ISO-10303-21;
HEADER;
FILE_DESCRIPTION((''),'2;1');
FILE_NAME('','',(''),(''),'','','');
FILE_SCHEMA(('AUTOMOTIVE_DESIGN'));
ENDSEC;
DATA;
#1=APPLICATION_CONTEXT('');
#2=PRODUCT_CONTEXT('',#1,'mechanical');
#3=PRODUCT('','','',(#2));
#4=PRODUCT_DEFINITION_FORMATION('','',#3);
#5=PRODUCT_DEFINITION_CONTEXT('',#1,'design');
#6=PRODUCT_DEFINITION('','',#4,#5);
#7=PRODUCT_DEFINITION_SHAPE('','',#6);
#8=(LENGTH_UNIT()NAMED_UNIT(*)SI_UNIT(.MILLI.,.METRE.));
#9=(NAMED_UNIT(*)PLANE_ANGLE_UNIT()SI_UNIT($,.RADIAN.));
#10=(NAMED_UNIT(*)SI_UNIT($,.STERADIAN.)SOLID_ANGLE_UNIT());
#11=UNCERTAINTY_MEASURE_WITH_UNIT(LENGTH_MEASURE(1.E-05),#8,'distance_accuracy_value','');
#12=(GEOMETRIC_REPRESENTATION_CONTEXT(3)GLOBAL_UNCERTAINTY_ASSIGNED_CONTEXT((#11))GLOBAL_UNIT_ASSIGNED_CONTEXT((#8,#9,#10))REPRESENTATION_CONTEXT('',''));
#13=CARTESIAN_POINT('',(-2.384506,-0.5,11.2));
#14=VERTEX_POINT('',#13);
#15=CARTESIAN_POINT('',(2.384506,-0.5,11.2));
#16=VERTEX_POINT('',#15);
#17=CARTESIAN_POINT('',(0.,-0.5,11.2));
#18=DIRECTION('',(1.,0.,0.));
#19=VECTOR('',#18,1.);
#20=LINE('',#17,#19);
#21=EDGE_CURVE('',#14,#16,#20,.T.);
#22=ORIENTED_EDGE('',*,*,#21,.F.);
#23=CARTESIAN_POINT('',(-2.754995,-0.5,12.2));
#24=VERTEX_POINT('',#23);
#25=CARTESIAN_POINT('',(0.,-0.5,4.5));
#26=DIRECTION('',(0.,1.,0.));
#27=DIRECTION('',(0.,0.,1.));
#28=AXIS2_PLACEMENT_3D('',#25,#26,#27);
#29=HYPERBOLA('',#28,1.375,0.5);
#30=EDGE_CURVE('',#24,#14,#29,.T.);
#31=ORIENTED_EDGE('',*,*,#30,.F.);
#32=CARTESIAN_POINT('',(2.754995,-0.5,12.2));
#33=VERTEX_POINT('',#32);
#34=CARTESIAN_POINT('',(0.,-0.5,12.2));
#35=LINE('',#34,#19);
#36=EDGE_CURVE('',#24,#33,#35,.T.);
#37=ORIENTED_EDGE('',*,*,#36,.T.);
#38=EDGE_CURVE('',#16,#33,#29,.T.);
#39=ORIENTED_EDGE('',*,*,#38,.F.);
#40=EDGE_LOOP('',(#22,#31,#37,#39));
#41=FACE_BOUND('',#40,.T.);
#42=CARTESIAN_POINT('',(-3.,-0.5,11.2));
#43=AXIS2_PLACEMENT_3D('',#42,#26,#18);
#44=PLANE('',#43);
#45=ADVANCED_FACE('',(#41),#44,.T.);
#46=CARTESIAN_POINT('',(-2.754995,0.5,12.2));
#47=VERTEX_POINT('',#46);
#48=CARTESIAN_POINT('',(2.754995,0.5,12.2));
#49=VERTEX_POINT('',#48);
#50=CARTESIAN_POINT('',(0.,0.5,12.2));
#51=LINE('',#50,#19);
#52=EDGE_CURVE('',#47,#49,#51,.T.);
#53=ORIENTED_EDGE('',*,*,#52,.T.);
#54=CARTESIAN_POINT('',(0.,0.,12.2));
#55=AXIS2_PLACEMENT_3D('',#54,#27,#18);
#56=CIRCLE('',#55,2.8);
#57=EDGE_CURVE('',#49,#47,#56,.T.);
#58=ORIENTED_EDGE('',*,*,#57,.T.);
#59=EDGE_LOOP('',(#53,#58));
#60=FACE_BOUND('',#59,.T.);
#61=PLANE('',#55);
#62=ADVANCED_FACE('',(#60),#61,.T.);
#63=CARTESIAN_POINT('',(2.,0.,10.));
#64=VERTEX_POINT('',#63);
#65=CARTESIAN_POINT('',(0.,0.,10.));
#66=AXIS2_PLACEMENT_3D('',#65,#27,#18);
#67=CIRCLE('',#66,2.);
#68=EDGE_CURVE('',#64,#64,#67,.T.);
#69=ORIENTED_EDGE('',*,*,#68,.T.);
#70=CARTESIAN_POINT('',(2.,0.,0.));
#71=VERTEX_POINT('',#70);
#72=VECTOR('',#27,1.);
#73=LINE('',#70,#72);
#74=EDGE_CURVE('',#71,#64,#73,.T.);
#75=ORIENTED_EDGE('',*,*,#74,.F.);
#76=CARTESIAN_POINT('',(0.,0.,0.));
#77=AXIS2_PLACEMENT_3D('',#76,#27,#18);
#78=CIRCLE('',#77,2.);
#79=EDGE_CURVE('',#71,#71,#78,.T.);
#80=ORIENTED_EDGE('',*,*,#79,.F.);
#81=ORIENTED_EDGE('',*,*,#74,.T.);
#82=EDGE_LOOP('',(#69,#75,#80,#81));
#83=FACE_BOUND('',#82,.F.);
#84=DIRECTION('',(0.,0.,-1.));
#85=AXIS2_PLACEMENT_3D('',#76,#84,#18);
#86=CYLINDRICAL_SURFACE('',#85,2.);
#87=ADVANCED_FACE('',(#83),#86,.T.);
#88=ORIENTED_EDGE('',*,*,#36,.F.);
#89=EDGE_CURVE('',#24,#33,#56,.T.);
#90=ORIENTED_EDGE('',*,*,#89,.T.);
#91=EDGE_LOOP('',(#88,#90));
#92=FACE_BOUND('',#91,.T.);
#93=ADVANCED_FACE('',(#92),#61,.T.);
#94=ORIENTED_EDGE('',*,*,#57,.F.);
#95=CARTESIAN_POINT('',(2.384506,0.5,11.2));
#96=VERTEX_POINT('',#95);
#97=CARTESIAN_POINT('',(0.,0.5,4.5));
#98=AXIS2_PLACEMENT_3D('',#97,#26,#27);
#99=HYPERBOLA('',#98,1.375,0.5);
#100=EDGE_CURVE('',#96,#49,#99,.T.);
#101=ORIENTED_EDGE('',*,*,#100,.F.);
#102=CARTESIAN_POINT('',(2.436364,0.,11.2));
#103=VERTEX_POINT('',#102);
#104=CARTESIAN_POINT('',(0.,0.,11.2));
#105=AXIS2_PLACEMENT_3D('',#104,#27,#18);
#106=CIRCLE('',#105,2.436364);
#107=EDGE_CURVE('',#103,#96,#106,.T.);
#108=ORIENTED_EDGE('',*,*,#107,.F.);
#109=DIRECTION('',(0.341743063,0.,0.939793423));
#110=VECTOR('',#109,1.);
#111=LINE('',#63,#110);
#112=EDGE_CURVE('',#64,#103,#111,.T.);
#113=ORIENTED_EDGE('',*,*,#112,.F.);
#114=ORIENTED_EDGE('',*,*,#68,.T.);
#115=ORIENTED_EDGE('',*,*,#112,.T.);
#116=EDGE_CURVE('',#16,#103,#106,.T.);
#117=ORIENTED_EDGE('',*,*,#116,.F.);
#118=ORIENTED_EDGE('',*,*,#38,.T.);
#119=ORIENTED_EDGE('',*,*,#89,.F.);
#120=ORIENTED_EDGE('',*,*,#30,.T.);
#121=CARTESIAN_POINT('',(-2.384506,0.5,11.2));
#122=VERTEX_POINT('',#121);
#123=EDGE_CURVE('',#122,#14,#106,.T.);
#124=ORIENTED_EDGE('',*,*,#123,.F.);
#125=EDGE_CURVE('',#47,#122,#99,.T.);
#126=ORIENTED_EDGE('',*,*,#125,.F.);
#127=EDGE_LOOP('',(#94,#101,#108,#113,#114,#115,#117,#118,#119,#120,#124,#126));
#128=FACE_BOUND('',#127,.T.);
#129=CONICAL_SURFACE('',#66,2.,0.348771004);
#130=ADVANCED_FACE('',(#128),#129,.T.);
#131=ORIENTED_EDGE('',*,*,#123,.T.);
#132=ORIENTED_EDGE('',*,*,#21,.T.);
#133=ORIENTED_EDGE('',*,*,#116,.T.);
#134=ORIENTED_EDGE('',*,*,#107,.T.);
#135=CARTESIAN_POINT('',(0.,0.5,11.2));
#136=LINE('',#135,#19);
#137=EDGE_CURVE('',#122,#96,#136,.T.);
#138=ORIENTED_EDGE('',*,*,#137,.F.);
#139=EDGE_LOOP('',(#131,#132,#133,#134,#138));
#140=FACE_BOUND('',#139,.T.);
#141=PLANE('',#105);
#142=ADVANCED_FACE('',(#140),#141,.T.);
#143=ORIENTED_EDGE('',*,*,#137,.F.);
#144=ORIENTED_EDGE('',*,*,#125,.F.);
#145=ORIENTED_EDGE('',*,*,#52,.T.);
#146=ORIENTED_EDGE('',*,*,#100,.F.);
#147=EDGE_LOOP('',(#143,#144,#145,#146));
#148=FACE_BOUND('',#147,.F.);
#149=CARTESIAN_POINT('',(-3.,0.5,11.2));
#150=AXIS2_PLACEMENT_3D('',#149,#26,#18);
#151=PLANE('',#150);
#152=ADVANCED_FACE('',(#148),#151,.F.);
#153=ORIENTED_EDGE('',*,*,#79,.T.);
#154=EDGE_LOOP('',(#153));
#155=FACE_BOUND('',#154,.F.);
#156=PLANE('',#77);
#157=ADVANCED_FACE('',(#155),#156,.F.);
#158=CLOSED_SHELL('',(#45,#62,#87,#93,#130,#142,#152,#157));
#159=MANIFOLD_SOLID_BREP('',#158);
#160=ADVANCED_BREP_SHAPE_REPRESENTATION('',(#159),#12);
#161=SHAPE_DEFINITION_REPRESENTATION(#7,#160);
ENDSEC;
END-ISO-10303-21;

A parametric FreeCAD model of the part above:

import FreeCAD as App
import Part
import Sketcher

doc = App.newDocument("Part")
body = doc.addObject("PartDesign::Body", "Body")

sketch1 = doc.addObject("Sketcher::SketchObject", "Sketch")
body.addObject(sketch1)
sketch1.AttachmentSupport = (doc.XY_Plane, [""])
sketch1.MapMode = "FlatFace"
sketch1.AttachmentOffset = App.Placement(App.Vector(0, 0, 11.2), App.Rotation())
sketch1.addGeometry([
    Part.LineSegment(App.Vector(-3, 0.5, 0), App.Vector(-3, -0.5, 0)),
    Part.LineSegment(App.Vector(-3, -0.5, 0), App.Vector(3, -0.5, 0)),
    Part.LineSegment(App.Vector(3, -0.5, 0), App.Vector(3, 0.5, 0)),
    Part.LineSegment(App.Vector(3, 0.5, 0), App.Vector(-3, 0.5, 0)),
], False)
sketch1.addConstraint([
    Sketcher.Constraint("Coincident", 0, 2, 1, 1),
    Sketcher.Constraint("Coincident", 1, 2, 2, 1),
    Sketcher.Constraint("Coincident", 2, 2, 3, 1),
    Sketcher.Constraint("Coincident", 3, 2, 0, 1),
    Sketcher.Constraint("Vertical", 0),
    Sketcher.Constraint("Horizontal", 1),
    Sketcher.Constraint("Vertical", 2),
    Sketcher.Constraint("Horizontal", 3),
    Sketcher.Constraint("Symmetric", 0, 2, 2, 2, -1, 1),
    Sketcher.Constraint("DistanceX", 1, 1, 1, 2, 6.0),
    Sketcher.Constraint("DistanceY", 0, 2, 0, 1, 1.0),
])
pad1 = doc.addObject("PartDesign::Pad", "Pad")
body.addObject(pad1)
pad1.Profile = sketch1
pad1.Length = 1
body2 = doc.addObject("PartDesign::Body", "Body001")

sketch2 = doc.addObject("Sketcher::SketchObject", "Sketch001")
body2.addObject(sketch2)
sketch2.AttachmentSupport = (doc.getObject("XZ_Plane001"), [""])
sketch2.MapMode = "FlatFace"
sketch2.addGeometry([
    Part.LineSegment(App.Vector(0, 10, 0), App.Vector(2, 10, 0)),
    Part.LineSegment(App.Vector(2, 10, 0), App.Vector(2.8, 12.2, 0)),
    Part.LineSegment(App.Vector(2.8, 12.2, 0), App.Vector(0, 12.2, 0)),
    Part.LineSegment(App.Vector(0, 12.2, 0), App.Vector(0, 10, 0)),
], False)
sketch2.addConstraint([
    Sketcher.Constraint("Coincident", 0, 2, 1, 1),
    Sketcher.Constraint("Coincident", 1, 2, 2, 1),
    Sketcher.Constraint("Coincident", 2, 2, 3, 1),
    Sketcher.Constraint("Coincident", 3, 2, 0, 1),
    Sketcher.Constraint("Horizontal", 0),
    Sketcher.Constraint("Horizontal", 2),
    Sketcher.Constraint("Vertical", 3),
    Sketcher.Constraint("PointOnObject", 2, 2, -2),
    Sketcher.Constraint("DistanceX", 0, 1, 0, 2, 2.0),
    Sketcher.Constraint("DistanceX", 2, 2, 2, 1, 2.8),
    Sketcher.Constraint("DistanceY", 3, 2, 3, 1, 2.2),
    Sketcher.Constraint("DistanceY", -1, 1, 0, 2, 10.0),
])
revolution = doc.addObject("PartDesign::Revolution", "Revolution")
body2.addObject(revolution)
revolution.Profile = sketch2
revolution.ReferenceAxis = (sketch2, ["V_Axis"])
revolution.Angle = 360
body3 = doc.addObject("PartDesign::Body", "Body002")

sketch3 = doc.addObject("Sketcher::SketchObject", "Sketch002")
body3.addObject(sketch3)
sketch3.AttachmentSupport = (doc.getObject("XY_Plane002"), [""])
sketch3.MapMode = "FlatFace"
sketch3.addGeometry(Part.Circle(App.Vector(0, 0, 0), App.Vector(0, 0, 1), 2), False)
sketch3.addConstraint([
    Sketcher.Constraint("Coincident", 0, 3, -1, 1),
    Sketcher.Constraint("Diameter", 0, 4.0),
])
pad2 = doc.addObject("PartDesign::Pad", "Pad001")
body3.addObject(pad2)
pad2.Profile = sketch3
pad2.Length = 10
doc.recompute()

boolean = doc.addObject("PartDesign::Boolean", "Boolean")
body3.addObject(boolean)
boolean.Type = "Fuse"
boolean.addObjects([body2])
doc.recompute()

boolean2 = doc.addObject("PartDesign::Boolean", "Boolean001")
body3.addObject(boolean2)
boolean2.Type = "Cut"
boolean2.addObjects([body])

doc.recompute()
